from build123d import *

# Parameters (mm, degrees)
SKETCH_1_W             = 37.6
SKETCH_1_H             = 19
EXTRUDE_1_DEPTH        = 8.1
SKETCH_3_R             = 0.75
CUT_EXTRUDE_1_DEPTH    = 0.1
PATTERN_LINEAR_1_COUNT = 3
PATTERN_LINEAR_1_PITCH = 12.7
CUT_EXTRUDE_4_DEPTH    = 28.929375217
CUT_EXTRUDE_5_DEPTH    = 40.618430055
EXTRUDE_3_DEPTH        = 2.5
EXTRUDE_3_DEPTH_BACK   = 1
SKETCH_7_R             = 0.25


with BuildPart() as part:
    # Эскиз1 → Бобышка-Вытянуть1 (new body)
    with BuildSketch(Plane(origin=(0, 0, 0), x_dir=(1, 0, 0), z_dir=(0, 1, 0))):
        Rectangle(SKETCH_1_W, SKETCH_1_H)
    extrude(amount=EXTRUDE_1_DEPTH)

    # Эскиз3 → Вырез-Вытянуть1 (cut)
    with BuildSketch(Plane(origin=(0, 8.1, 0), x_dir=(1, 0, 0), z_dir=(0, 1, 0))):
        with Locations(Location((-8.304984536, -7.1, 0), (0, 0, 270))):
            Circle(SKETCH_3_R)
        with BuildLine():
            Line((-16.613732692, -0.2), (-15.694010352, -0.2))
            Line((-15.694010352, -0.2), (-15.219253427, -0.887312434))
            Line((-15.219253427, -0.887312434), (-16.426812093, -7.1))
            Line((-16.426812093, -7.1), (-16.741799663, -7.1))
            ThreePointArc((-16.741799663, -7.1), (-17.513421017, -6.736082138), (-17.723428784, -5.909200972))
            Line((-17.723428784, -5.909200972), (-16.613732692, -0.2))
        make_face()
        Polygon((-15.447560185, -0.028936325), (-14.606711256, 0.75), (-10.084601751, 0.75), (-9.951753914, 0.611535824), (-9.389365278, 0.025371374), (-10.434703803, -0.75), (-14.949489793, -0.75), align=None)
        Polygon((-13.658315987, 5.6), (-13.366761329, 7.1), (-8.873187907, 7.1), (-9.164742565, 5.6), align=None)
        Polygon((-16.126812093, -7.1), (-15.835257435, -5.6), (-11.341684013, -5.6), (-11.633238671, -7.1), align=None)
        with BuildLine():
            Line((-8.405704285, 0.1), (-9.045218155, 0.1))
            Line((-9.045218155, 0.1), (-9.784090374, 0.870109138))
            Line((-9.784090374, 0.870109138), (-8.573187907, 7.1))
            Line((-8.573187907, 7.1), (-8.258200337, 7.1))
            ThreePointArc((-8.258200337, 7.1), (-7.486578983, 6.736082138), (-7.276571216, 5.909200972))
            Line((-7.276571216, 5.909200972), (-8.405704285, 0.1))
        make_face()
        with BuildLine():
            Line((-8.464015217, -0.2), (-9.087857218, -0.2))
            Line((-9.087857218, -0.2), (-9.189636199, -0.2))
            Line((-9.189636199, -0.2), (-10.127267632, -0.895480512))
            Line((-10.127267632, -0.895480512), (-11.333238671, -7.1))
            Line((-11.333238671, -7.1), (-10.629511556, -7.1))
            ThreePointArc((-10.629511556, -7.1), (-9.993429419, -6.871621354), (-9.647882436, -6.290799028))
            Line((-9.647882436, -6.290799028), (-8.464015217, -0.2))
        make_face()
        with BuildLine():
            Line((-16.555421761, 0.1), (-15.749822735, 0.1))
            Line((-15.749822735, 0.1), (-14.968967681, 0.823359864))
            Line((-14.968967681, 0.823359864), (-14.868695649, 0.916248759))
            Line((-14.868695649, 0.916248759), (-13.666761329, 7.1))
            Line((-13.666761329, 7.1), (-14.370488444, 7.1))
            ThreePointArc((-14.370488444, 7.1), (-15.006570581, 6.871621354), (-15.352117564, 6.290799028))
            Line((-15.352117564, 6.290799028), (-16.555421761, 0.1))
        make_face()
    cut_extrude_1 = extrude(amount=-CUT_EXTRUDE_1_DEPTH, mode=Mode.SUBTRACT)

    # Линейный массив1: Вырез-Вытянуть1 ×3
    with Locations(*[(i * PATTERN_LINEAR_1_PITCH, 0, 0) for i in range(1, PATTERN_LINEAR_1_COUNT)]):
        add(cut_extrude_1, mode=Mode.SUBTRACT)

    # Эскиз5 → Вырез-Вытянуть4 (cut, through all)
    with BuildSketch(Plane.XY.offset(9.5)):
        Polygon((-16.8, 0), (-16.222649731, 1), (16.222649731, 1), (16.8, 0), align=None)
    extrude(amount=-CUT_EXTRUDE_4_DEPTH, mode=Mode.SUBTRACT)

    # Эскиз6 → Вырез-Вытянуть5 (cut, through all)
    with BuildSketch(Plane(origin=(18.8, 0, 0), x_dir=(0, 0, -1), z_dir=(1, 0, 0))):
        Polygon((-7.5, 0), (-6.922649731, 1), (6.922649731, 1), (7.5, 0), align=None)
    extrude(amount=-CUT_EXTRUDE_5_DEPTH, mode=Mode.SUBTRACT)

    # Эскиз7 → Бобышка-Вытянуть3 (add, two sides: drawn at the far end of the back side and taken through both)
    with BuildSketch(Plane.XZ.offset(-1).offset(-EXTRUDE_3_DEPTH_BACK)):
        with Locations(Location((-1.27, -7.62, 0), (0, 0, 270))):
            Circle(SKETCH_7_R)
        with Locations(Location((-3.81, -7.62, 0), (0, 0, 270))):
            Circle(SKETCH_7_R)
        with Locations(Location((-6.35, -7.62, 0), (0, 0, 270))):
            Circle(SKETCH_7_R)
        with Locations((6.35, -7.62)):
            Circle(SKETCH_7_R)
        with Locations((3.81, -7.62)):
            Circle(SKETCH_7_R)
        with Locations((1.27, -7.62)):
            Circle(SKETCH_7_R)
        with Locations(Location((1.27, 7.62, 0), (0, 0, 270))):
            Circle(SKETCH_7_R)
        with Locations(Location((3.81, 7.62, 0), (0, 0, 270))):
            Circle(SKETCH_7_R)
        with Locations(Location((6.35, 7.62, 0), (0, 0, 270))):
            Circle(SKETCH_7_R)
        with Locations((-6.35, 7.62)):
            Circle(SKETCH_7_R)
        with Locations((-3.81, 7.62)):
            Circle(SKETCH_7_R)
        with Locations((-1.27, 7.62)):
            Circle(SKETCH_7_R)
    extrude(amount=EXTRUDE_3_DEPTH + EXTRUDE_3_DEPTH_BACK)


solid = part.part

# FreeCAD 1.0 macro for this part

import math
import FreeCAD as App
import Part
import Sketcher

V = App.Vector
Q = App.Units.Quantity

doc = App.newDocument("Part")
params = doc.addObject("Spreadsheet::Sheet", "Params")
for row, (alias, value) in enumerate([
    ("sketch1_height", "19 mm"),
    ("sketch1_width", "37.6 mm"),
    ("pad1_length", "8.1 mm"),
    ("sketch2_radius", "1 mm"),
    ("sketch2_diameter", "1.5 mm"),
    ("pocket1_length", "0.1 mm"),
    ("linearpattern_pitch", "12.7 mm"),
    ("sketch3_width", "33.6 mm"),
    ("sketch4_height", "15 mm"),
    ("sketch5_diameter", "0.5 mm"),
    ("pad2_length", "2.5 mm"),
    ("pad2_length2", "1 mm"),
], start=1):
    params.set(f"A{row}", alias)
    params.set(f"B{row}", "=" + value)
    params.setAlias(f"B{row}", alias)

body = doc.addObject("PartDesign::Body", "Body")

# Sketch on XZ plane
sketch1 = doc.addObject("Sketcher::SketchObject", "Sketch")
body.addObject(sketch1)
sketch1.AttachmentSupport = (doc.XZ_Plane, [""])
sketch1.MapMode = "FlatFace"
sketch1.addGeometry([
    Part.LineSegment(V(-19, -10, 0), V(-19, 10, 0)),
    Part.LineSegment(V(-19, 10, 0), V(19, 10, 0)),
    Part.LineSegment(V(19, 10, 0), V(19, -10, 0)),
    Part.LineSegment(V(19, -10, 0), V(-19, -10, 0)),
], False)
sketch1.addConstraint([
    Sketcher.Constraint("Coincident", 0, 2, 1, 1),
    Sketcher.Constraint("Coincident", 1, 2, 2, 1),
    Sketcher.Constraint("Coincident", 2, 2, 3, 1),
    Sketcher.Constraint("Coincident", 3, 2, 0, 1),
    Sketcher.Constraint("Vertical", 0),
    Sketcher.Constraint("Horizontal", 1),
    Sketcher.Constraint("Vertical", 2),
    Sketcher.Constraint("Horizontal", 3),
    Sketcher.Constraint("Symmetric", 0, 2, 2, 2, -1, 1),
    Sketcher.Constraint("DistanceY", 0, 1, 0, 2, 19.0),
    Sketcher.Constraint("DistanceX", 1, 1, 1, 2, 37.6),
])
sketch1.setExpression("Constraints[9]", "Params.sketch1_height")
sketch1.setExpression("Constraints[10]", "Params.sketch1_width")
pad1 = doc.addObject("PartDesign::Pad", "Pad")
body.addObject(pad1)
pad1.Profile = sketch1
pad1.setExpression("Length", "Params.pad1_length")
pad1.Reversed = True

# Sketch on XZ plane
sketch2 = doc.addObject("Sketcher::SketchObject", "Sketch001")
body.addObject(sketch2)
sketch2.AttachmentSupport = (doc.XZ_Plane, [""])
sketch2.MapMode = "FlatFace"
sketch2.AttachmentOffset = App.Placement(V(0, 0, -8.1), App.Rotation())
sketch2.addGeometry([
    Part.Circle(V(-8.3, 7.1, 0), V(0, 0, 1), 0.75),  # 0
    Part.LineSegment(V(-15.69, 0.2, 0), V(-16.61, 0.2, 0)),  # 1
    Part.LineSegment(V(-16.61, 0.2, 0), V(-17.72, 5.91, 0)),  # 2
    Part.ArcOfCircle(Part.Circle(V(-16.74, 6.1, 0), V(0, 0, 1), 1), math.radians(90), math.radians(191)),  # 3
    Part.LineSegment(V(-16.74, 7.1, 0), V(-16.43, 7.1, 0)),  # 4
    Part.LineSegment(V(-16.43, 7.1, 0), V(-15.22, 0.89, 0)),  # 5
    Part.LineSegment(V(-15.22, 0.89, 0), V(-15.69, 0.2, 0)),  # 6
    Part.LineSegment(V(-14.61, -0.75, 0), V(-15.45, 0.03, 0)),  # 7
    Part.LineSegment(V(-15.45, 0.03, 0), V(-14.95, 0.75, 0)),  # 8
    Part.LineSegment(V(-14.95, 0.75, 0), V(-10.43, 0.75, 0)),  # 9
    Part.LineSegment(V(-10.43, 0.75, 0), V(-9.39, -0.03, 0)),  # 10
    Part.LineSegment(V(-9.39, -0.03, 0), V(-9.95, -0.61, 0)),  # 11
    Part.LineSegment(V(-9.95, -0.61, 0), V(-10.08, -0.75, 0)),  # 12
    Part.LineSegment(V(-10.08, -0.75, 0), V(-14.61, -0.75, 0)),  # 13
    Part.LineSegment(V(-13.37, -7.1, 0), V(-13.66, -5.6, 0)),  # 14
    Part.LineSegment(V(-13.66, -5.6, 0), V(-9.16, -5.6, 0)),  # 15
    Part.LineSegment(V(-9.16, -5.6, 0), V(-8.87, -7.1, 0)),  # 16
    Part.LineSegment(V(-8.87, -7.1, 0), V(-13.37, -7.1, 0)),  # 17
    Part.LineSegment(V(-15.84, 5.6, 0), V(-16.13, 7.1, 0)),  # 18
    Part.LineSegment(V(-16.13, 7.1, 0), V(-11.63, 7.1, 0)),  # 19
    Part.LineSegment(V(-11.63, 7.1, 0), V(-11.34, 5.6, 0)),  # 20
    Part.LineSegment(V(-11.34, 5.6, 0), V(-15.84, 5.6, 0)),  # 21
    Part.LineSegment(V(-9.05, -0.1, 0), V(-8.41, -0.1, 0)),  # 22
    Part.LineSegment(V(-8.41, -0.1, 0), V(-7.28, -5.91, 0)),  # 23
    Part.ArcOfCircle(Part.Circle(V(-8.26, -6.1, 0), V(0, 0, 1), 1), math.radians(-90), math.radians(11)),  # 24
    Part.LineSegment(V(-8.26, -7.1, 0), V(-8.57, -7.1, 0)),  # 25
    Part.LineSegment(V(-8.57, -7.1, 0), V(-9.78, -0.87, 0)),  # 26
    Part.LineSegment(V(-9.78, -0.87, 0), V(-9.05, -0.1, 0)),  # 27
    Part.LineSegment(V(-8.46, 0.2, 0), V(-9.19, 0.2, 0)),  # 28
    Part.LineSegment(V(-9.19, 0.2, 0), V(-10.13, 0.9, 0)),  # 29
    Part.LineSegment(V(-10.13, 0.9, 0), V(-11.33, 7.1, 0)),  # 30
    Part.LineSegment(V(-11.33, 7.1, 0), V(-10.63, 7.1, 0)),  # 31
    Part.ArcOfCircle(Part.Circle(V(-10.63, 6.1, 0), V(0, 0, 1), 1), math.radians(11), math.radians(90)),  # 32
    Part.LineSegment(V(-9.65, 6.29, 0), V(-8.46, 0.2, 0)),  # 33
    Part.LineSegment(V(-16.56, -0.1, 0), V(-15.75, -0.1, 0)),  # 34
    Part.LineSegment(V(-15.75, -0.1, 0), V(-14.97, -0.82, 0)),  # 35
    Part.LineSegment(V(-14.97, -0.82, 0), V(-14.87, -0.92, 0)),  # 36
    Part.LineSegment(V(-14.87, -0.92, 0), V(-13.67, -7.1, 0)),  # 37
    Part.LineSegment(V(-13.67, -7.1, 0), V(-14.37, -7.1, 0)),  # 38
    Part.ArcOfCircle(Part.Circle(V(-14.37, -6.1, 0), V(0, 0, 1), 1), math.radians(-169), math.radians(-90)),  # 39
    Part.LineSegment(V(-15.35, -6.29, 0), V(-16.56, -0.1, 0)),  # 40
], False)
sketch2.addConstraint([
    Sketcher.Constraint("Coincident", 1, 2, 2, 1),
    Sketcher.Constraint("Tangent", 2, 2, 3, 2),
    Sketcher.Constraint("Tangent", 3, 1, 4, 1),
    Sketcher.Constraint("Coincident", 4, 2, 5, 1),
    Sketcher.Constraint("Coincident", 5, 2, 6, 1),
    Sketcher.Constraint("Coincident", 6, 2, 1, 1),
    Sketcher.Constraint("Coincident", 7, 2, 8, 1),
    Sketcher.Constraint("Coincident", 8, 2, 9, 1),
    Sketcher.Constraint("Coincident", 9, 2, 10, 1),
    Sketcher.Constraint("Coincident", 10, 2, 11, 1),
    Sketcher.Constraint("Coincident", 11, 2, 12, 1),
    Sketcher.Constraint("Coincident", 12, 2, 13, 1),
    Sketcher.Constraint("Coincident", 13, 2, 7, 1),
    Sketcher.Constraint("Coincident", 14, 2, 15, 1),
    Sketcher.Constraint("Coincident", 15, 2, 16, 1),
    Sketcher.Constraint("Coincident", 16, 2, 17, 1),
    Sketcher.Constraint("Coincident", 17, 2, 14, 1),
    Sketcher.Constraint("Coincident", 18, 2, 19, 1),
    Sketcher.Constraint("Coincident", 19, 2, 20, 1),
    Sketcher.Constraint("Coincident", 20, 2, 21, 1),
    Sketcher.Constraint("Coincident", 21, 2, 18, 1),
    Sketcher.Constraint("Coincident", 22, 2, 23, 1),
    Sketcher.Constraint("Tangent", 23, 2, 24, 2),
    Sketcher.Constraint("Tangent", 24, 1, 25, 1),
    Sketcher.Constraint("Coincident", 25, 2, 26, 1),
    Sketcher.Constraint("Coincident", 26, 2, 27, 1),
    Sketcher.Constraint("Coincident", 27, 2, 22, 1),
    Sketcher.Constraint("Coincident", 28, 2, 29, 1),
    Sketcher.Constraint("Coincident", 29, 2, 30, 1),
    Sketcher.Constraint("Coincident", 30, 2, 31, 1),
    Sketcher.Constraint("Tangent", 31, 2, 32, 2),
    Sketcher.Constraint("Tangent", 32, 1, 33, 1),
    Sketcher.Constraint("Coincident", 33, 2, 28, 1),
    Sketcher.Constraint("Coincident", 34, 2, 35, 1),
    Sketcher.Constraint("Coincident", 35, 2, 36, 1),
    Sketcher.Constraint("Coincident", 36, 2, 37, 1),
    Sketcher.Constraint("Coincident", 37, 2, 38, 1),
    Sketcher.Constraint("Tangent", 38, 2, 39, 2),
    Sketcher.Constraint("Tangent", 39, 1, 40, 1),
    Sketcher.Constraint("Coincident", 40, 2, 34, 1),
    Sketcher.Constraint("Horizontal", 1),
    Sketcher.Constraint("Horizontal", 4),
    Sketcher.Constraint("Horizontal", 9),
    Sketcher.Constraint("Horizontal", 13),
    Sketcher.Constraint("Horizontal", 15),
    Sketcher.Constraint("Horizontal", 17),
    Sketcher.Constraint("Horizontal", 19),
    Sketcher.Constraint("Horizontal", 21),
    Sketcher.Constraint("Horizontal", 22),
    Sketcher.Constraint("Horizontal", 25),
    Sketcher.Constraint("Horizontal", 28),
    Sketcher.Constraint("Horizontal", 31),
    Sketcher.Constraint("Horizontal", 34),
    Sketcher.Constraint("Horizontal", 38),
    Sketcher.Constraint("Equal", 3, 24),
    Sketcher.Constraint("Equal", 24, 32),
    Sketcher.Constraint("Equal", 32, 39),
    Sketcher.Constraint("Parallel", 2, 5),
    Sketcher.Constraint("Parallel", 6, 8),
    Sketcher.Constraint("Parallel", 11, 12),
    Sketcher.Constraint("Parallel", 5, 14),
    Sketcher.Constraint("Parallel", 14, 16),
    Sketcher.Constraint("Parallel", 16, 18),
    Sketcher.Constraint("Parallel", 18, 20),
    Sketcher.Constraint("Parallel", 20, 23),
    Sketcher.Constraint("Parallel", 23, 26),
    Sketcher.Constraint("Parallel", 12, 27),
    Sketcher.Constraint("Parallel", 10, 29),
    Sketcher.Constraint("Parallel", 26, 30),
    Sketcher.Constraint("Parallel", 30, 33),
    Sketcher.Constraint("Parallel", 7, 35),
    Sketcher.Constraint("Parallel", 35, 36),
    Sketcher.Constraint("Parallel", 33, 37),
    Sketcher.Constraint("Parallel", 37, 40),
    Sketcher.Constraint("Horizontal", 3, 3, 32, 3),
    Sketcher.Constraint("Horizontal", 24, 3, 39, 3),
    Sketcher.Constraint("Horizontal", 0, 3, 3, 1),
    Sketcher.Constraint("Horizontal", 4, 2, 18, 2),
    Sketcher.Constraint("Horizontal", 17, 2, 24, 1),
    Sketcher.Constraint("Horizontal", 6, 2, 28, 2),
    Sketcher.Constraint("Horizontal", 27, 2, 34, 2),
    Sketcher.Constraint("Equal", 17, 19),
    Sketcher.Constraint("Equal", 4, 25),
    Sketcher.Constraint("Equal", 31, 38),
    Sketcher.Constraint("Equal", 16, 18),
    Sketcher.Constraint("Radius", 3, 1.0),
    Sketcher.Constraint("Diameter", 0, 1.5),
    Sketcher.Constraint("DistanceY", -1, 1, 0, 3, 7.1),
    Sketcher.Constraint("DistanceY", 24, 3, -1, 1, 6.1),
    Sketcher.Constraint("DistanceY", -1, 1, 1, 2, 0.2),
    Sketcher.Constraint("DistanceY", 14, 2, -1, 1, 5.6),
    Sketcher.Constraint("DistanceY", 22, 2, -1, 1, 0.1),
    Sketcher.Constraint("DistanceY", 12, 2, 9, 2, 1.5),
    Sketcher.Constraint("DistanceX", 4, 2, 18, 2, 0.3),
    Sketcher.Constraint("DistanceX", 16, 2, 25, 2, 0.3),
    Sketcher.Constraint("DistanceX", 19, 2, 30, 2, 0.3),
    Sketcher.Constraint("DistanceX", 37, 2, 17, 2, 0.3),
    Sketcher.Constraint("DistanceY", -1, 1, 8, 2, 0.75),
    Sketcher.Constraint("DistanceX", 34, 1, 34, 2, 0.805599),
    Sketcher.Constraint("DistanceX", 9, 2, 22, 2, 2.029),
    Sketcher.Constraint("DistanceX", 13, 2, 13, 1, 4.52211),
    Sketcher.Constraint("DistanceX", 28, 2, 28, 1, 0.725621),
    Sketcher.Constraint("DistanceX", 3, 3, -1, 1, 16.7418),
    Sketcher.Constraint("DistanceX", 24, 3, -1, 1, 8.2582),
    Sketcher.Constraint("DistanceY", -1, 1, 2, 2, 5.909201),
    Sketcher.Constraint("DistanceX", 12, 2, -1, 1, 10.084602),
    Sketcher.Constraint("DistanceX", 4, 2, 32, 3, 5.797301),
    Sketcher.Constraint("DistanceX", 5, 2, 11, 2, 5.2675),
    Sketcher.Constraint("DistanceX", 6, 2, 13, 2, 1.087299),
    Sketcher.Constraint("DistanceX", 20, 2, 0, 3, 3.036699),
    Sketcher.Constraint("DistanceX", 20, 2, 32, 1, 1.693802),
    Sketcher.Constraint("Distance", 6, 0.83534),
    Sketcher.Constraint("Distance", 8, 0.87636),
    Sketcher.Constraint("Distance", 10, 1.301512),
    Sketcher.Constraint("Distance", 26, 6.346481),
    Sketcher.Constraint("Distance", 27, 1.06724),
    Sketcher.Constraint("Distance", 37, 6.299478),
    Sketcher.Constraint("DistanceX", 4, 1, 4, 2, 0.314988),
    Sketcher.Constraint("DistanceY", 35, 2, -1, 1, 0.82336),
])
sketch2.setExpression("Constraints[85]", "Params.sketch2_radius")
sketch2.setExpression("Constraints[86]", "Params.sketch2_diameter")
pocket1 = doc.addObject("PartDesign::Pocket", "Pocket")
body.addObject(pocket1)
pocket1.Profile = sketch2
pocket1.setExpression("Length", "Params.pocket1_length")
pocket1.Reversed = True
doc.recompute()

linearpattern = doc.addObject("PartDesign::LinearPattern", "LinearPattern")
body.addObject(linearpattern)
linearpattern.Originals = [pocket1]
linearpattern.Direction = (doc.X_Axis, [""])
linearpattern.Mode = "offset"
linearpattern.setExpression("Offset", "Params.linearpattern_pitch")
linearpattern.Occurrences = 3
body.Tip = linearpattern

# Sketch on XY plane
sketch3 = doc.addObject("Sketcher::SketchObject", "Sketch002")
body.addObject(sketch3)
sketch3.AttachmentSupport = (doc.XY_Plane, [""])
sketch3.MapMode = "FlatFace"
sketch3.AttachmentOffset = App.Placement(V(0, 0, 9.5), App.Rotation())
sketch3.addGeometry([
    Part.LineSegment(V(-16.2, 1, 0), V(-16.8, 0, 0)),
    Part.LineSegment(V(-16.8, 0, 0), V(16.8, 0, 0)),
    Part.LineSegment(V(16.8, 0, 0), V(16.2, 1, 0)),
    Part.LineSegment(V(16.2, 1, 0), V(-16.2, 1, 0)),
], False)
sketch3.addConstraint([
    Sketcher.Constraint("Coincident", 0, 2, 1, 1),
    Sketcher.Constraint("Coincident", 1, 2, 2, 1),
    Sketcher.Constraint("Coincident", 2, 2, 3, 1),
    Sketcher.Constraint("Coincident", 3, 2, 0, 1),
    Sketcher.Constraint("Horizontal", 1),
    Sketcher.Constraint("Horizontal", 3),
    Sketcher.Constraint("Symmetric", 0, 2, 1, 2, -1, 1),
    Sketcher.Constraint("Equal", 0, 2),
    Sketcher.Constraint("Angle", 0, Q("-120 deg")),
    Sketcher.Constraint("DistanceX", 1, 1, 1, 2, 33.6),
    Sketcher.Constraint("DistanceY", -1, 1, 2, 2, 1.0),
])
sketch3.setExpression("Constraints[9]", "Params.sketch3_width")
pocket2 = doc.addObject("PartDesign::Pocket", "Pocket001")
body.addObject(pocket2)
pocket2.Profile = sketch3
pocket2.Type = "ThroughAll"

# Sketch on YZ plane
sketch4 = doc.addObject("Sketcher::SketchObject", "Sketch003")
body.addObject(sketch4)
sketch4.AttachmentSupport = (doc.YZ_Plane, [""])
sketch4.MapMode = "FlatFace"
sketch4.AttachmentOffset = App.Placement(V(0, 0, 18.8), App.Rotation())
sketch4.addGeometry([
    Part.LineSegment(V(1, 6.9, 0), V(0, 7.5, 0)),
    Part.LineSegment(V(0, 7.5, 0), V(0, -7.5, 0)),
    Part.LineSegment(V(0, -7.5, 0), V(1, -6.9, 0)),
    Part.LineSegment(V(1, -6.9, 0), V(1, 6.9, 0)),
], False)
sketch4.addConstraint([
    Sketcher.Constraint("Coincident", 0, 2, 1, 1),
    Sketcher.Constraint("Coincident", 1, 2, 2, 1),
    Sketcher.Constraint("Coincident", 2, 2, 3, 1),
    Sketcher.Constraint("Coincident", 3, 2, 0, 1),
    Sketcher.Constraint("Vertical", 1),
    Sketcher.Constraint("Vertical", 3),
    Sketcher.Constraint("Symmetric", 0, 2, 1, 2, -1, 1),
    Sketcher.Constraint("Equal", 0, 2),
    Sketcher.Constraint("DistanceY", 1, 2, 1, 1, 15.0),
    Sketcher.Constraint("Angle", 0, Q("150 deg")),
    Sketcher.Constraint("DistanceX", -1, 1, 2, 2, 1.0),
])
sketch4.setExpression("Constraints[8]", "Params.sketch4_height")
pocket3 = doc.addObject("PartDesign::Pocket", "Pocket002")
body.addObject(pocket3)
pocket3.Profile = sketch4
pocket3.Type = "ThroughAll"

# Sketch on XZ plane
sketch5 = doc.addObject("Sketcher::SketchObject", "Sketch004")
body.addObject(sketch5)
sketch5.AttachmentSupport = (doc.XZ_Plane, [""])
sketch5.MapMode = "FlatFace"
sketch5.AttachmentOffset = App.Placement(V(0, 0, -1), App.Rotation())
sketch5.addGeometry([
    Part.Circle(V(-1.27, -7.62, 0), V(0, 0, 1), 0.25),  # 0
    Part.Circle(V(-3.81, -7.62, 0), V(0, 0, 1), 0.25),  # 1
    Part.Circle(V(-6.35, -7.62, 0), V(0, 0, 1), 0.25),  # 2
    Part.Circle(V(6.35, -7.62, 0), V(0, 0, 1), 0.25),  # 3
    Part.Circle(V(3.81, -7.62, 0), V(0, 0, 1), 0.25),  # 4
    Part.Circle(V(1.27, -7.62, 0), V(0, 0, 1), 0.25),  # 5
    Part.Circle(V(1.27, 7.62, 0), V(0, 0, 1), 0.25),  # 6
    Part.Circle(V(3.81, 7.62, 0), V(0, 0, 1), 0.25),  # 7
    Part.Circle(V(6.35, 7.62, 0), V(0, 0, 1), 0.25),  # 8
    Part.Circle(V(-6.35, 7.62, 0), V(0, 0, 1), 0.25),  # 9
    Part.Circle(V(-3.81, 7.62, 0), V(0, 0, 1), 0.25),  # 10
    Part.Circle(V(-1.27, 7.62, 0), V(0, 0, 1), 0.25),  # 11
], False)
sketch5.addConstraint([
    Sketcher.Constraint("Equal", 0, 1),
    Sketcher.Constraint("Equal", 1, 2),
    Sketcher.Constraint("Equal", 2, 3),
    Sketcher.Constraint("Equal", 3, 4),
    Sketcher.Constraint("Equal", 4, 5),
    Sketcher.Constraint("Equal", 5, 6),
    Sketcher.Constraint("Equal", 6, 7),
    Sketcher.Constraint("Equal", 7, 8),
    Sketcher.Constraint("Equal", 8, 9),
    Sketcher.Constraint("Equal", 9, 10),
    Sketcher.Constraint("Equal", 10, 11),
    Sketcher.Constraint("Symmetric", 0, 3, 6, 3, -1, 1),
    Sketcher.Constraint("Symmetric", 1, 3, 7, 3, -1, 1),
    Sketcher.Constraint("Symmetric", 2, 3, 8, 3, -1, 1),
    Sketcher.Constraint("Symmetric", 3, 3, 9, 3, -1, 1),
    Sketcher.Constraint("Symmetric", 4, 3, 10, 3, -1, 1),
    Sketcher.Constraint("Symmetric", 5, 3, 11, 3, -1, 1),
    Sketcher.Constraint("Symmetric", 2, 3, 3, 3, -2),
    Sketcher.Constraint("Symmetric", 1, 3, 4, 3, -2),
    Sketcher.Constraint("Symmetric", 0, 3, 5, 3, -2),
    Sketcher.Constraint("Horizontal", 0, 3, 1, 3),
    Sketcher.Constraint("Horizontal", 1, 3, 2, 3),
    Sketcher.Constraint("Diameter", 0, 0.5),
    Sketcher.Constraint("DistanceX", 2, 3, 3, 3, 12.7),
    Sketcher.Constraint("DistanceX", 0, 3, -1, 1, 1.27),
    Sketcher.Constraint("DistanceY", 0, 3, -1, 1, 7.62),
    Sketcher.Constraint("DistanceX", 1, 3, -1, 1, 3.81),
])
sketch5.setExpression("Constraints[22]", "Params.sketch5_diameter")
pad2 = doc.addObject("PartDesign::Pad", "Pad001")
body.addObject(pad2)
pad2.Profile = sketch5
pad2.Type = "TwoLengths"
pad2.setExpression("Length", "Params.pad2_length")
pad2.setExpression("Length2", "Params.pad2_length2")

doc.recompute()
